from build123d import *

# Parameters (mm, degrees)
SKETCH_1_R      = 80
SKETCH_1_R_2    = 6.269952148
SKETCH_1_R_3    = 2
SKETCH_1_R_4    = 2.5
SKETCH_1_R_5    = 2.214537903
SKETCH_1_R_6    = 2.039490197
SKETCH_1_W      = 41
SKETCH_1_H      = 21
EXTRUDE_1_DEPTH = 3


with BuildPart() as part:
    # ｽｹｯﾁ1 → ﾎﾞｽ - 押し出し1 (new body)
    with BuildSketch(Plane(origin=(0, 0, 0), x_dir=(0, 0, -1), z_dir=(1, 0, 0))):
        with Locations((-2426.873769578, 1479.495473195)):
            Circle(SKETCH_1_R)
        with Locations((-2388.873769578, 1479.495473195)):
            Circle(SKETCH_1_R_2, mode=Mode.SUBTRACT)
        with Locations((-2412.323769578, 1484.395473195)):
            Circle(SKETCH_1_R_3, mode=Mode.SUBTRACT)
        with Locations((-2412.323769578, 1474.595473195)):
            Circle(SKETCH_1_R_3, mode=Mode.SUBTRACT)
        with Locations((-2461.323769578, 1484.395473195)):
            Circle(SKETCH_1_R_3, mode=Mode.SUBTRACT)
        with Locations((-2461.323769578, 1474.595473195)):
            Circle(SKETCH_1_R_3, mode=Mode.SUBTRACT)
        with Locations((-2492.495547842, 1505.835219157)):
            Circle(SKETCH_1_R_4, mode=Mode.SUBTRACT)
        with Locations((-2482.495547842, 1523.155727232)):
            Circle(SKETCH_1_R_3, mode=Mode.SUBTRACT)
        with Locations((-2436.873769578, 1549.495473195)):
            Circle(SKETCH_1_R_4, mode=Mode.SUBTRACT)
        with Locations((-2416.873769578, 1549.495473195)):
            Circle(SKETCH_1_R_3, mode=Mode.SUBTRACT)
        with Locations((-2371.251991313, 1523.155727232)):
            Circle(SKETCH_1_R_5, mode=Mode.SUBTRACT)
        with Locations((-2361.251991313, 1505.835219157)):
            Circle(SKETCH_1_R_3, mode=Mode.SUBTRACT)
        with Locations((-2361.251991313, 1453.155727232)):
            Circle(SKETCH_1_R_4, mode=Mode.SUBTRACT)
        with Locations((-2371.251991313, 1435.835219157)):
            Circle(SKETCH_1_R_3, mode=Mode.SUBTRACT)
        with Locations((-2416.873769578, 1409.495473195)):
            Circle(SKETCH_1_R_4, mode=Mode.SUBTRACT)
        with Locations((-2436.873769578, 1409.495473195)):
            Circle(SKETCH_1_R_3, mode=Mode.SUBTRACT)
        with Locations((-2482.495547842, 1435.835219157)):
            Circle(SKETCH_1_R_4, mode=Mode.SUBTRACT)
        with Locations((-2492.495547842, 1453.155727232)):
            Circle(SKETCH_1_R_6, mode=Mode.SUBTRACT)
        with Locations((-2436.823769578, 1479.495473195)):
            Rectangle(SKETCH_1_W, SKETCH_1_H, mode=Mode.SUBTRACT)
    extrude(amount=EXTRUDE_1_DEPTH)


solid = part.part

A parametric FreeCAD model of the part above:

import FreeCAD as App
import Part
import Sketcher
from FreeCAD import Vector
Q = App.Units.Quantity

doc = App.newDocument("Part")
body = doc.addObject("PartDesign::Body", "Body")

# Sketch on YZ plane
sketch1 = doc.addObject("Sketcher::SketchObject", "Sketch")
body.addObject(sketch1)
sketch1.AttachmentSupport = (doc.YZ_Plane, [""])
sketch1.MapMode = "FlatFace"
sketch1.addGeometry([
    Part.Circle(Vector(1479.5, 2426.9, 0), Vector(0, 0, 1), 80),  # 0
    Part.Circle(Vector(1435.8, 2482.5, 0), Vector(0, 0, 1), 2.5),  # 1
    Part.Circle(Vector(1409.5, 2436.9, 0), Vector(0, 0, 1), 2),  # 2
    Part.Circle(Vector(1453.2, 2492.5, 0), Vector(0, 0, 1), 2),  # 3
    Part.Circle(Vector(1474.6, 2461.3, 0), Vector(0, 0, 1), 2),  # 4
    Part.Circle(Vector(1409.5, 2416.9, 0), Vector(0, 0, 1), 2.5),  # 5
    Part.Circle(Vector(1435.8, 2371.3, 0), Vector(0, 0, 1), 2),  # 6
    Part.Circle(Vector(1474.6, 2412.3, 0), Vector(0, 0, 1), 2),  # 7
    Part.Circle(Vector(1453.2, 2361.3, 0), Vector(0, 0, 1), 2.5),  # 8
    Part.Circle(Vector(1484.4, 2461.3, 0), Vector(0, 0, 1), 2),  # 9
    Part.Circle(Vector(1505.8, 2492.5, 0), Vector(0, 0, 1), 2.5),  # 10
    Part.LineSegment(Vector(1469, 2416.3, 0), Vector(1469, 2457.3, 0)),  # 11
    Part.LineSegment(Vector(1469, 2457.3, 0), Vector(1490, 2457.3, 0)),  # 12
    Part.LineSegment(Vector(1490, 2457.3, 0), Vector(1490, 2416.3, 0)),  # 13
    Part.LineSegment(Vector(1490, 2416.3, 0), Vector(1469, 2416.3, 0)),  # 14
    Part.Circle(Vector(1523.2, 2482.5, 0), Vector(0, 0, 1), 2),  # 15
    Part.Circle(Vector(1549.5, 2436.9, 0), Vector(0, 0, 1), 2.5),  # 16
    Part.Circle(Vector(1484.4, 2412.3, 0), Vector(0, 0, 1), 2),  # 17
    Part.Circle(Vector(1479.5, 2388.9, 0), Vector(0, 0, 1), 6.3),  # 18
    Part.Circle(Vector(1505.8, 2361.3, 0), Vector(0, 0, 1), 2),  # 19
    Part.Circle(Vector(1549.5, 2416.9, 0), Vector(0, 0, 1), 2),  # 20
    Part.Circle(Vector(1523.2, 2371.3, 0), Vector(0, 0, 1), 2.2),  # 21
], False)
sketch1.addConstraint([
    Sketcher.Constraint("Coincident", 11, 2, 12, 1),
    Sketcher.Constraint("Coincident", 12, 2, 13, 1),
    Sketcher.Constraint("Coincident", 13, 2, 14, 1),
    Sketcher.Constraint("Coincident", 14, 2, 11, 1),
    Sketcher.Constraint("Vertical", 11),
    Sketcher.Constraint("Horizontal", 12),
    Sketcher.Constraint("Vertical", 13),
    Sketcher.Constraint("Horizontal", 14),
    Sketcher.Constraint("Equal", 2, 4),
    Sketcher.Constraint("Equal", 1, 5),
    Sketcher.Constraint("Equal", 4, 6),
    Sketcher.Constraint("Equal", 6, 7),
    Sketcher.Constraint("Equal", 5, 8),
    Sketcher.Constraint("Equal", 7, 9),
    Sketcher.Constraint("Equal", 8, 10),
    Sketcher.Constraint("Equal", 9, 15),
    Sketcher.Constraint("Equal", 10, 16),
    Sketcher.Constraint("Equal", 15, 17),
    Sketcher.Constraint("Equal", 17, 19),
    Sketcher.Constraint("Equal", 19, 20),
    Sketcher.Constraint("Horizontal", 4, 3, 9, 3),
    Sketcher.Constraint("Horizontal", 3, 3, 10, 3),
    Sketcher.Constraint("Horizontal", 1, 3, 15, 3),
    Sketcher.Constraint("Horizontal", 2, 3, 16, 3),
    Sketcher.Constraint("Horizontal", 7, 3, 17, 3),
    Sketcher.Constraint("Horizontal", 8, 3, 19, 3),
    Sketcher.Constraint("Horizontal", 5, 3, 20, 3),
    Sketcher.Constraint("Horizontal", 6, 3, 21, 3),
    Sketcher.Constraint("Vertical", 2, 3, 5, 3),
    Sketcher.Constraint("Vertical", 1, 3, 6, 3),
    Sketcher.Constraint("Vertical", 4, 3, 7, 3),
    Sketcher.Constraint("Vertical", 3, 3, 8, 3),
    Sketcher.Constraint("Vertical", 9, 3, 17, 3),
    Sketcher.Constraint("Vertical", 0, 3, 18, 3),
    Sketcher.Constraint("Vertical", 10, 3, 19, 3),
    Sketcher.Constraint("Vertical", 16, 3, 20, 3),
    Sketcher.Constraint("Vertical", 15, 3, 21, 3),
    Sketcher.Constraint("Diameter", 0, Q("160 mm")),
    Sketcher.Constraint("Diameter", 1, Q("5 mm")),
    Sketcher.Constraint("Diameter", 2, Q("4 mm")),
    Sketcher.Constraint("DistanceX", 12, 1, 12, 2, Q("21 mm")),
    Sketcher.Constraint("DistanceY", 11, 1, 11, 2, Q("41 mm")),
    Sketcher.Constraint("DistanceX", 2, 3, 0, 3, Q("70 mm")),
    Sketcher.Constraint("DistanceY", 0, 3, 2, 3, Q("10 mm")),
    Sketcher.Constraint("DistanceY", 1, 3, 3, 3, Q("10 mm")),
    Sketcher.Constraint("DistanceY", 5, 3, 2, 3, Q("20 mm")),
    Sketcher.Constraint("DistanceY", 7, 3, 4, 3, Q("49 mm")),
    Sketcher.Constraint("DistanceY", 8, 3, 6, 3, Q("10 mm")),
    Sketcher.Constraint("DistanceX", 1, 3, 10, 3, Q("70 mm")),
    Sketcher.Constraint("DistanceX", 3, 3, 15, 3, Q("70 mm")),
    Sketcher.Constraint("DistanceX", 0, 3, 16, 3, Q("70 mm")),
    Sketcher.Constraint("DistanceY", 18, 3, 0, 3, Q("38 mm")),
    Sketcher.Constraint("DistanceY", 11, 2, 4, 3, Q("4 mm")),
    Sketcher.Constraint("DistanceX", 4, 3, 0, 3, Q("4.9 mm")),
    Sketcher.Constraint("DistanceX", 4, 3, 9, 3, Q("9.8 mm")),
    Sketcher.Constraint("DistanceX", 11, 2, 4, 3, Q("5.6 mm")),
    Sketcher.Constraint("Diameter", 3, Q("4.07898 mm")),
    Sketcher.Constraint("DistanceY", 0, 3, 4, 3, Q("34.45 mm")),
    Sketcher.Constraint("Diameter", 18, Q("12.539904 mm")),
    Sketcher.Constraint("Diameter", 21, Q("4.429076 mm")),
    Sketcher.Constraint("DistanceY", -1, 1, 0, 3, Q("2426.87377 mm")),
    Sketcher.Constraint("DistanceX", -1, 1, 1, 3, Q("1435.835219 mm")),
    Sketcher.Constraint("DistanceY", -1, 1, 6, 3, Q("2371.251991 mm")),
    Sketcher.Constraint("DistanceY", 0, 3, 1, 3, Q("55.621778 mm")),
    Sketcher.Constraint("DistanceX", 1, 3, 3, 3, Q("17.320508 mm")),
    Sketcher.Constraint("DistanceX", -1, 1, 0, 3, Q("1479.495473 mm")),
])
pad1 = doc.addObject("PartDesign::Pad", "Pad")
body.addObject(pad1)
pad1.Profile = sketch1
pad1.Length = 3

doc.recompute()
